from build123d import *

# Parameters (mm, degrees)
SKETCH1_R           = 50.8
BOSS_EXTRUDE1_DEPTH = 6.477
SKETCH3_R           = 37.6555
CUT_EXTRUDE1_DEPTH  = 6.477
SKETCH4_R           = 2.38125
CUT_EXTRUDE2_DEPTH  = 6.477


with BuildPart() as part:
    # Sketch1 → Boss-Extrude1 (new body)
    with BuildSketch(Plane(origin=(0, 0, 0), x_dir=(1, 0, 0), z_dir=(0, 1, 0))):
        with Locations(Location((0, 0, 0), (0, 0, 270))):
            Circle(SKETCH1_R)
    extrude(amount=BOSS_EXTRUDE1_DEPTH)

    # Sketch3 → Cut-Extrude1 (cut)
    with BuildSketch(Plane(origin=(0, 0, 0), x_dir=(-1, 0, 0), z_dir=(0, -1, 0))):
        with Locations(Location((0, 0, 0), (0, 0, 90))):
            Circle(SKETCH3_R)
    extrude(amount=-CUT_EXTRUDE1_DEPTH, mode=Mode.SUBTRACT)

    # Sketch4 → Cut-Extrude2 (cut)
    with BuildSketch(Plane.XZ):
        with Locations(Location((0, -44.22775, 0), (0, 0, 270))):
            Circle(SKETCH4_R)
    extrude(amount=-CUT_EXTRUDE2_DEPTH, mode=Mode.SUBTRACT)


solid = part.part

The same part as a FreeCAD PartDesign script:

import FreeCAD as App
import Part
import Sketcher

V = App.Vector
Q = App.Units.Quantity

doc = App.newDocument("Part")
body = doc.addObject("PartDesign::Body", "Body")

sketch1 = body.newObject("Sketcher::SketchObject", "Sketch")
sketch1.AttachmentSupport = (doc.getObject("XZ_Plane"), [""])
sketch1.MapMode = "FlatFace"
sketch1.addGeometry(Part.Circle(V(0, 0, 0), V(0, 0, 1), 51), False)
sketch1.addConstraint(Sketcher.Constraint("Coincident", 0, 3, -1, 1))
sketch1.addConstraint(Sketcher.Constraint("Diameter", 0, Q("4 in")))
pad1 = body.newObject("PartDesign::Pad", "Pad")
pad1.Profile = sketch1
pad1.Length = Q("0.255 in")
pad1.Reversed = True

sketch2 = body.newObject("Sketcher::SketchObject", "Sketch001")
sketch2.AttachmentSupport = (doc.getObject("XZ_Plane"), [""])
sketch2.MapMode = "FlatFace"
sketch2.addGeometry(Part.Circle(V(0, 0, 0), V(0, 0, 1), 38), False)
sketch2.addConstraint(Sketcher.Constraint("Coincident", 0, 3, -1, 1))
sketch2.addConstraint(Sketcher.Constraint("Diameter", 0, Q("2.965 in")))
pocket1 = body.newObject("PartDesign::Pocket", "Pocket")
pocket1.Profile = sketch2
pocket1.Length = Q("0.255 in")

sketch3 = body.newObject("Sketcher::SketchObject", "Sketch002")
sketch3.AttachmentSupport = (doc.getObject("XZ_Plane"), [""])
sketch3.MapMode = "FlatFace"
sketch3.addGeometry(Part.Circle(V(0, -44.2, 0), V(0, 0, 1), 2.4), False)
sketch3.addConstraint(Sketcher.Constraint("PointOnObject", 0, 3, -2))
sketch3.addConstraint(Sketcher.Constraint("Diameter", 0, Q("0.1875 in")))
sketch3.addConstraint(Sketcher.Constraint("DistanceY", 0, 3, -1, 1, 44.22775))
pocket2 = body.newObject("PartDesign::Pocket", "Pocket001")
pocket2.Profile = sketch3
pocket2.Length = Q("0.255 in")

doc.recompute()
